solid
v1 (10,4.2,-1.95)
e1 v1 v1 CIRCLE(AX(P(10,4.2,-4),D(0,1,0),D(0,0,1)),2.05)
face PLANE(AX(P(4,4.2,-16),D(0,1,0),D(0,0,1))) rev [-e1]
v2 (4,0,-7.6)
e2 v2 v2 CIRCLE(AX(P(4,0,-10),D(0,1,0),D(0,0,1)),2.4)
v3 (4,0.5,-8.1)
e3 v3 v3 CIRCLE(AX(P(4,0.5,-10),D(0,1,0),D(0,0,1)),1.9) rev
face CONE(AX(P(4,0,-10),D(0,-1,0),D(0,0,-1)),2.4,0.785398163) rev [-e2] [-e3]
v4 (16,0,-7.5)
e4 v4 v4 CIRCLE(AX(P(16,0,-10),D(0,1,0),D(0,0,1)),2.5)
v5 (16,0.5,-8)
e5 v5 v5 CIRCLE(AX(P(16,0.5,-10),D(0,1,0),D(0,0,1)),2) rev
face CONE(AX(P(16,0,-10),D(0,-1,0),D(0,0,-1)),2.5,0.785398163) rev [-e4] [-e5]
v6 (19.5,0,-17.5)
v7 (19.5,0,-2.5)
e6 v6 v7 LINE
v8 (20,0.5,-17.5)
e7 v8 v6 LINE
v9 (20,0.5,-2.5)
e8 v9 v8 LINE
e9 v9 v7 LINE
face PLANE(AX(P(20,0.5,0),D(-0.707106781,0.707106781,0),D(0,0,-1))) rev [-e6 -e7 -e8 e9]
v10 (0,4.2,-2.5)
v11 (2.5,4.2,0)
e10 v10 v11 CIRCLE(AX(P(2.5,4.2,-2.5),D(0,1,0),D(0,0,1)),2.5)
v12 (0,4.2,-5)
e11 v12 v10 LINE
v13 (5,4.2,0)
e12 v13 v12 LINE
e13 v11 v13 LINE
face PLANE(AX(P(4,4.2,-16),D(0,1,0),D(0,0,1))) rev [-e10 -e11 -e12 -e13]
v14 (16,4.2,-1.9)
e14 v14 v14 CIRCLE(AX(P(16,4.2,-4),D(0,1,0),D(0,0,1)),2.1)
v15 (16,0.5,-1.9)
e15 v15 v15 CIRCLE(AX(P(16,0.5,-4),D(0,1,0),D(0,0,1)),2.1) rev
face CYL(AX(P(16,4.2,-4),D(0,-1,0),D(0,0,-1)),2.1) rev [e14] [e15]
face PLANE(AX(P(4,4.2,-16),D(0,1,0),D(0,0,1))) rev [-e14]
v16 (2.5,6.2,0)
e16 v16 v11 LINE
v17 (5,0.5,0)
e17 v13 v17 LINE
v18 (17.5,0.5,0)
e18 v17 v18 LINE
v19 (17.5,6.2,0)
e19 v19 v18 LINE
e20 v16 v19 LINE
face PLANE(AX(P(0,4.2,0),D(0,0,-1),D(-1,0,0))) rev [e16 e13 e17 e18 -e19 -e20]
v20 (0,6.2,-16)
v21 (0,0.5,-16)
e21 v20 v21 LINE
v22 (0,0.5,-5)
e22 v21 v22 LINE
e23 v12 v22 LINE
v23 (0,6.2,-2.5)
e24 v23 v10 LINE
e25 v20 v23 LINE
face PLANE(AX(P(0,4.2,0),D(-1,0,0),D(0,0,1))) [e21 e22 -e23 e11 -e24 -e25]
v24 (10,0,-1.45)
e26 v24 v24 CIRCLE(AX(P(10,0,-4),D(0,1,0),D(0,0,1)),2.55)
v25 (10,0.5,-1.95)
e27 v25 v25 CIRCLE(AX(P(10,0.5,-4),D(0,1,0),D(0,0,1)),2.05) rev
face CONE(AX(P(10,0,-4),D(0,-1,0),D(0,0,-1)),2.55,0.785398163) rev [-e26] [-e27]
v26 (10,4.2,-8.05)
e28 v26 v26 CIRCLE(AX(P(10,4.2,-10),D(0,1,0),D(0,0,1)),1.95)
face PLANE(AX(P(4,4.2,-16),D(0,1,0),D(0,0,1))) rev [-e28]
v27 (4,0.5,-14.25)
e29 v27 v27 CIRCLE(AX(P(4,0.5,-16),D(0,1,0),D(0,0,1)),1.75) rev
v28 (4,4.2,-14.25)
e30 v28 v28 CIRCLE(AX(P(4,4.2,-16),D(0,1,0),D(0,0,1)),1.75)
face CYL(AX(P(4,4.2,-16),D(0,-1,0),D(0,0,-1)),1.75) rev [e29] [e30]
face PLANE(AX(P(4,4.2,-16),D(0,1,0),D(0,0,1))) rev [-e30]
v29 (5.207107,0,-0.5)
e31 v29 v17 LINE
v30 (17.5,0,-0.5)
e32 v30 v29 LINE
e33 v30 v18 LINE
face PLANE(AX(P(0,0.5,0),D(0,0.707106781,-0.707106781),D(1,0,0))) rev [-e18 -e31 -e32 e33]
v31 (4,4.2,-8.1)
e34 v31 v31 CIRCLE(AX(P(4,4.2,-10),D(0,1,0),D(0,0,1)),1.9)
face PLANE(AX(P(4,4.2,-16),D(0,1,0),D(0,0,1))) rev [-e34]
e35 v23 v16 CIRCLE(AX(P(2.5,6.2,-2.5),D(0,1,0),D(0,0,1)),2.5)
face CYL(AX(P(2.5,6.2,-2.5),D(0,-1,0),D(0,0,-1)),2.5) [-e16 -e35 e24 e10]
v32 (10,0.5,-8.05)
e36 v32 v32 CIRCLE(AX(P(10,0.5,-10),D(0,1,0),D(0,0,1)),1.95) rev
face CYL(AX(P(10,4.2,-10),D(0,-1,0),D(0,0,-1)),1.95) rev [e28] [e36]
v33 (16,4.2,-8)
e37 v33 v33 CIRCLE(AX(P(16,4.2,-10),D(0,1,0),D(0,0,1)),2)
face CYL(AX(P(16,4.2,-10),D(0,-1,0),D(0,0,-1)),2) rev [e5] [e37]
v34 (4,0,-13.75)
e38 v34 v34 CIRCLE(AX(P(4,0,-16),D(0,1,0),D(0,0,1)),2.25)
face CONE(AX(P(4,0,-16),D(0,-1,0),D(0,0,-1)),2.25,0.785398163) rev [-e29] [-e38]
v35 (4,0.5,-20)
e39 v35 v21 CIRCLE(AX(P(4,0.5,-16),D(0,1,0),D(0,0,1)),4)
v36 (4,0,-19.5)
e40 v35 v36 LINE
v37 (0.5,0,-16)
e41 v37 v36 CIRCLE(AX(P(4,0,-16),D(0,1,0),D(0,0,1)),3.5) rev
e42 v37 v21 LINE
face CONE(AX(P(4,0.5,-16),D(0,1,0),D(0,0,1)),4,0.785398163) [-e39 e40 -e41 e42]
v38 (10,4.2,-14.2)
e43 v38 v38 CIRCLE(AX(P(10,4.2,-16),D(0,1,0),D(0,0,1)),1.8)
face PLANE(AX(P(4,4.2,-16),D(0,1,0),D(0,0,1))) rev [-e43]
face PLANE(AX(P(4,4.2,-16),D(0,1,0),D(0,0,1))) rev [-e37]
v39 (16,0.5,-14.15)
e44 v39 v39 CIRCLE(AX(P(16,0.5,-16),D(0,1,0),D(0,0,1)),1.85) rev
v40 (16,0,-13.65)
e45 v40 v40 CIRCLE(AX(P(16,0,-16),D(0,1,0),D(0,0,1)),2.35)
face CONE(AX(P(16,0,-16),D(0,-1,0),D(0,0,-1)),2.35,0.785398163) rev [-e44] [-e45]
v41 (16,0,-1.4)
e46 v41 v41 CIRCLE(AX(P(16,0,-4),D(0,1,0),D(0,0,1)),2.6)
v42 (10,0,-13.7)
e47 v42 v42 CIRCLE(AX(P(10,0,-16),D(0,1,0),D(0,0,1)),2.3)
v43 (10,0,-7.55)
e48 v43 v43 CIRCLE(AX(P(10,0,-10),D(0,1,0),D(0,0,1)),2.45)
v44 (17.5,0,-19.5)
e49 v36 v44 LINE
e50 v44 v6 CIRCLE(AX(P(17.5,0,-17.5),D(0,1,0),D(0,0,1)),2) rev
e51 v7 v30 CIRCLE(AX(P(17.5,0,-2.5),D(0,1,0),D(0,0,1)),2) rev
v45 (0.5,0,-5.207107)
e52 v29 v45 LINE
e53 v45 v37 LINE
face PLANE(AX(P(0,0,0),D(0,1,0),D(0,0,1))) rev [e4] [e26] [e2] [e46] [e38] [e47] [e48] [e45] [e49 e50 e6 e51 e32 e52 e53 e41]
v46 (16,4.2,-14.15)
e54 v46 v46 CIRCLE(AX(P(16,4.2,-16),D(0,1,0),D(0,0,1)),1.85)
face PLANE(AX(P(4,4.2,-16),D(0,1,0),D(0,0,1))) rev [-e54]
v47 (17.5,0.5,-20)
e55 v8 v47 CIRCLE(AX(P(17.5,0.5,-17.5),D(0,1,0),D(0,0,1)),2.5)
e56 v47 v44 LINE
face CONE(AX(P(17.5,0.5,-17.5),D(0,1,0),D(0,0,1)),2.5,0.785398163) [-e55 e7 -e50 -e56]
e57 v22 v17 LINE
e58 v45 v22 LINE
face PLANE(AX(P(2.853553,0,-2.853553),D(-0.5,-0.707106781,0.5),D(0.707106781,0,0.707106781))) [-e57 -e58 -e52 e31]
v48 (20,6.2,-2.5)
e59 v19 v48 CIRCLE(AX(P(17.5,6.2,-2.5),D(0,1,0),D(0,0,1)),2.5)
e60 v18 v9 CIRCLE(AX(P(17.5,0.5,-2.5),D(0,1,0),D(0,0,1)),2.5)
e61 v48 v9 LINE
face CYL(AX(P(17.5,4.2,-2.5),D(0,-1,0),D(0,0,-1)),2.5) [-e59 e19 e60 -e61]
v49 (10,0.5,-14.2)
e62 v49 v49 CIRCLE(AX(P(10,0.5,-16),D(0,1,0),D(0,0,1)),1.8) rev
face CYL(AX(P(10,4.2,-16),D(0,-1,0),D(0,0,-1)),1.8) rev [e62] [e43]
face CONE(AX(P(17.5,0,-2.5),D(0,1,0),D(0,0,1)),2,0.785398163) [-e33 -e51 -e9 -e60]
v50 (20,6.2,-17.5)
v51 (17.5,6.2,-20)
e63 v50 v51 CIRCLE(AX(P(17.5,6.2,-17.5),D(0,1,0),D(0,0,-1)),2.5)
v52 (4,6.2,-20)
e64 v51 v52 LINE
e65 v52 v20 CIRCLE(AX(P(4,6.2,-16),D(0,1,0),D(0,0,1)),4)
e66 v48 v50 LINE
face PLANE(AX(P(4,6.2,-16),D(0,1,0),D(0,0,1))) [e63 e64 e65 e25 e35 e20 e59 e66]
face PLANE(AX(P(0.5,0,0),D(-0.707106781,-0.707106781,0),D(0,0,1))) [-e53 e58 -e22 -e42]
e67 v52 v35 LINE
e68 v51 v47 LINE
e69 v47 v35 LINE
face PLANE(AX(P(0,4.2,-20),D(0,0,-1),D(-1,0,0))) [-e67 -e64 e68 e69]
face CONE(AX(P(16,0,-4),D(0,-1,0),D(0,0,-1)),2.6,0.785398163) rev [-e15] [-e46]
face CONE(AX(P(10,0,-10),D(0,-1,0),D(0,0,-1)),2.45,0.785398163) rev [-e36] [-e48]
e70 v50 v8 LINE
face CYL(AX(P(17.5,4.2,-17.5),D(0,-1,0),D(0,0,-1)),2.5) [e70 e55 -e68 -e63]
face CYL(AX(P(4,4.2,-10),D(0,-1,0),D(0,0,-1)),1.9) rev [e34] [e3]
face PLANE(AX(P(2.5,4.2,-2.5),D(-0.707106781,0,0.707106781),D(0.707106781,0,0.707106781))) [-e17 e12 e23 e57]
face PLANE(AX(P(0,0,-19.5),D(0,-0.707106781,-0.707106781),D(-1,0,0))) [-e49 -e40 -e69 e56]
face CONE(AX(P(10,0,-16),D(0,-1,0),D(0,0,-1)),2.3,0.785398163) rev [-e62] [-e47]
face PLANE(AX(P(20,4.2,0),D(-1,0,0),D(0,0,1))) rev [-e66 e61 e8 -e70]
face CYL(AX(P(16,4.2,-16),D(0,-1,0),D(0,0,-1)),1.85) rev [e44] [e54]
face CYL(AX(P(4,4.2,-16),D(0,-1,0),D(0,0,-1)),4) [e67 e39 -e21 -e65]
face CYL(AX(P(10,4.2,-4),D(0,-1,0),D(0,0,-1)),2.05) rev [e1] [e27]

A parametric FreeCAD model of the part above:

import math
import FreeCAD as App
import Part
import Sketcher

V = App.Vector
Q = App.Units.Quantity


def edges_at(feature, points):
    """Names of the edges that pass closest to the given points."""
    edges = feature.Shape.Edges
    near = lambda p: min(range(len(edges)), key=lambda i: edges[i].distToShape(Part.Vertex(*p))[0])
    return sorted({f"Edge{near(p) + 1}" for p in points})

doc = App.newDocument("Part")
body = doc.addObject("PartDesign::Body", "Body")

sketch1 = body.newObject("Sketcher::SketchObject", "Sketch")
sketch1.AttachmentSupport = (doc.getObject("XZ_Plane"), [""])
sketch1.MapMode = "FlatFace"
sketch1.addGeometry(Part.LineSegment(V(0, -5, 0), V(5, 0, 0)), False)
sketch1.addGeometry(Part.LineSegment(V(5, 0, 0), V(17.5, 0, 0)), False)
sketch1.addGeometry(Part.ArcOfCircle(Part.Circle(V(17.5, -2.5, 0), V(0, 0, 1), 2.5), math.radians(0), math.radians(90)), False)
sketch1.addGeometry(Part.LineSegment(V(20, -2.5, 0), V(20, -17.5, 0)), False)
sketch1.addGeometry(Part.ArcOfCircle(Part.Circle(V(17.5, -17.5, 0), V(0, 0, 1), 2.5), math.radians(-90), math.radians(0)), False)
sketch1.addGeometry(Part.LineSegment(V(17.5, -20, 0), V(4, -20, 0)), False)
sketch1.addGeometry(Part.ArcOfCircle(Part.Circle(V(4, -16, 0), V(0, 0, 1), 4), math.radians(180), math.radians(270)), False)
sketch1.addGeometry(Part.LineSegment(V(0, -16, 0), V(0, -5, 0)), False)
sketch1.addGeometry(Part.Circle(V(10, -4, 0), V(0, 0, 1), 2), False)
sketch1.addGeometry(Part.Circle(V(16, -4, 0), V(0, 0, 1), 2.1), False)
sketch1.addGeometry(Part.Circle(V(4, -10, 0), V(0, 0, 1), 1.9), False)
sketch1.addGeometry(Part.Circle(V(10, -10, 0), V(0, 0, 1), 1.9), False)
sketch1.addGeometry(Part.Circle(V(4, -16, 0), V(0, 0, 1), 1.8), False)
sketch1.addGeometry(Part.Circle(V(10, -16, 0), V(0, 0, 1), 1.8), False)
sketch1.addGeometry(Part.Circle(V(16, -10, 0), V(0, 0, 1), 2), False)
sketch1.addGeometry(Part.Circle(V(16, -16, 0), V(0, 0, 1), 1.9), False)
sketch1.addConstraint(Sketcher.Constraint("Coincident", 0, 2, 1, 1))
sketch1.addConstraint(Sketcher.Constraint("Tangent", 1, 2, 2, 2))
sketch1.addConstraint(Sketcher.Constraint("Tangent", 2, 1, 3, 1))
sketch1.addConstraint(Sketcher.Constraint("Tangent", 3, 2, 4, 2))
sketch1.addConstraint(Sketcher.Constraint("Tangent", 4, 1, 5, 1))
sketch1.addConstraint(Sketcher.Constraint("Tangent", 5, 2, 6, 2))
sketch1.addConstraint(Sketcher.Constraint("Tangent", 6, 1, 7, 1))
sketch1.addConstraint(Sketcher.Constraint("Coincident", 7, 2, 0, 1))
sketch1.addConstraint(Sketcher.Constraint("Horizontal", 1))
sketch1.addConstraint(Sketcher.Constraint("Vertical", 3))
sketch1.addConstraint(Sketcher.Constraint("Horizontal", 5))
sketch1.addConstraint(Sketcher.Constraint("Vertical", 7))
sketch1.addConstraint(Sketcher.Constraint("Coincident", 12, 3, 6, 3))
sketch1.addConstraint(Sketcher.Constraint("Equal", 2, 4))
sketch1.addConstraint(Sketcher.Constraint("PointOnObject", 0, 2, -1))
sketch1.addConstraint(Sketcher.Constraint("PointOnObject", 6, 1, -2))
sketch1.addConstraint(Sketcher.Constraint("Horizontal", 8, 3, 9, 3))
sketch1.addConstraint(Sketcher.Constraint("Horizontal", 10, 3, 11, 3))
sketch1.addConstraint(Sketcher.Constraint("Horizontal", 12, 3, 13, 3))
sketch1.addConstraint(Sketcher.Constraint("Horizontal", 11, 3, 14, 3))
sketch1.addConstraint(Sketcher.Constraint("Horizontal", 13, 3, 15, 3))
sketch1.addConstraint(Sketcher.Constraint("Vertical", 6, 3, 10, 3))
sketch1.addConstraint(Sketcher.Constraint("Vertical", 8, 3, 11, 3))
sketch1.addConstraint(Sketcher.Constraint("Vertical", 11, 3, 13, 3))
sketch1.addConstraint(Sketcher.Constraint("Vertical", 9, 3, 14, 3))
sketch1.addConstraint(Sketcher.Constraint("Vertical", 14, 3, 15, 3))
sketch1.addConstraint(Sketcher.Constraint("Diameter", 14, Q("4 mm")))
sketch1.addConstraint(Sketcher.Constraint("Radius", 6, Q("4 mm")))
sketch1.addConstraint(Sketcher.Constraint("Diameter", 8, Q("4.1 mm")))
sketch1.addConstraint(Sketcher.Constraint("Diameter", 9, Q("4.2 mm")))
sketch1.addConstraint(Sketcher.Constraint("Diameter", 10, Q("3.8 mm")))
sketch1.addConstraint(Sketcher.Constraint("Diameter", 11, Q("3.9 mm")))
sketch1.addConstraint(Sketcher.Constraint("Diameter", 12, Q("3.5 mm")))
sketch1.addConstraint(Sketcher.Constraint("Diameter", 13, Q("3.6 mm")))
sketch1.addConstraint(Sketcher.Constraint("Diameter", 15, Q("3.7 mm")))
sketch1.addConstraint(Sketcher.Constraint("Radius", 2, Q("2.5 mm")))
sketch1.addConstraint(Sketcher.Constraint("DistanceY", 3, 2, 3, 1, Q("15 mm")))
sketch1.addConstraint(Sketcher.Constraint("DistanceY", 7, 1, 7, 2, Q("11 mm")))
sketch1.addConstraint(Sketcher.Constraint("Angle", 0, Q("45 deg")))
sketch1.addConstraint(Sketcher.Constraint("DistanceX", 1, 1, 1, 2, Q("12.5 mm")))
sketch1.addConstraint(Sketcher.Constraint("DistanceX", -1, 1, 8, 3, Q("10 mm")))
sketch1.addConstraint(Sketcher.Constraint("DistanceY", 8, 3, -1, 1, Q("4 mm")))
sketch1.addConstraint(Sketcher.Constraint("DistanceX", -1, 1, 9, 3, Q("16 mm")))
sketch1.addConstraint(Sketcher.Constraint("DistanceY", 10, 3, -1, 1, Q("10 mm")))
pad1 = body.newObject("PartDesign::Pad", "Pad")
pad1.Profile = sketch1
pad1.Length = 4.2
pad1.Reversed = True

sketch2 = body.newObject("Sketcher::SketchObject", "Sketch001")
sketch2.AttachmentSupport = (doc.getObject("XZ_Plane"), [""])
sketch2.MapMode = "FlatFace"
sketch2.AttachmentOffset = App.Placement(V(0, 0, -4.2), App.Rotation())
sketch2.addGeometry(Part.LineSegment(V(20, -2.5, 0), V(20, -17.5, 0)), False)
sketch2.addGeometry(Part.ArcOfCircle(Part.Circle(V(17.5, -17.5, 0), V(0, 0, 1), 2.5), math.radians(-90), math.radians(0)), False)
sketch2.addGeometry(Part.LineSegment(V(17.5, -20, 0), V(4, -20, 0)), False)
sketch2.addGeometry(Part.ArcOfCircle(Part.Circle(V(4, -16, 0), V(0, 0, 1), 4), math.radians(180), math.radians(270)), False)
sketch2.addGeometry(Part.LineSegment(V(0, -16, 0), V(0, -2.5, 0)), False)
sketch2.addGeometry(Part.ArcOfCircle(Part.Circle(V(2.5, -2.5, 0), V(0, 0, 1), 2.5), math.radians(90), math.radians(180)), False)
sketch2.addGeometry(Part.LineSegment(V(2.5, 0, 0), V(17.5, 0, 0)), False)
sketch2.addGeometry(Part.ArcOfCircle(Part.Circle(V(17.5, -2.5, 0), V(0, 0, 1), 2.5), math.radians(0), math.radians(90)), False)
sketch2.addConstraint(Sketcher.Constraint("Tangent", 0, 2, 1, 2))
sketch2.addConstraint(Sketcher.Constraint("Tangent", 1, 1, 2, 1))
sketch2.addConstraint(Sketcher.Constraint("Tangent", 2, 2, 3, 2))
sketch2.addConstraint(Sketcher.Constraint("Tangent", 3, 1, 4, 1))
sketch2.addConstraint(Sketcher.Constraint("Tangent", 4, 2, 5, 2))
sketch2.addConstraint(Sketcher.Constraint("Tangent", 5, 1, 6, 1))
sketch2.addConstraint(Sketcher.Constraint("Tangent", 6, 2, 7, 2))
sketch2.addConstraint(Sketcher.Constraint("Tangent", 7, 1, 0, 1))
sketch2.addConstraint(Sketcher.Constraint("Vertical", 0))
sketch2.addConstraint(Sketcher.Constraint("Horizontal", 2))
sketch2.addConstraint(Sketcher.Constraint("Vertical", 4))
sketch2.addConstraint(Sketcher.Constraint("Horizontal", 6))
sketch2.addConstraint(Sketcher.Constraint("Equal", 1, 5))
sketch2.addConstraint(Sketcher.Constraint("Equal", 5, 7))
sketch2.addConstraint(Sketcher.Constraint("PointOnObject", 3, 1, -2))
sketch2.addConstraint(Sketcher.Constraint("PointOnObject", 5, 1, -1))
sketch2.addConstraint(Sketcher.Constraint("Equal", 6, 0))
sketch2.addConstraint(Sketcher.Constraint("Radius", 3, Q("4 mm")))
sketch2.addConstraint(Sketcher.Constraint("Radius", 1, Q("2.5 mm")))
sketch2.addConstraint(Sketcher.Constraint("DistanceX", 6, 1, 6, 2, Q("15 mm")))
pad2 = body.newObject("PartDesign::Pad", "Pad001")
pad2.Profile = sketch2
pad2.Length = 2
pad2.Reversed = True
doc.recompute()

chamfer = body.newObject("PartDesign::Chamfer", "Chamfer")
chamfer.Base = (pad2, edges_at(pad2, [
    (19.268, 0, -19.268),
    (20, 0, -10),
    (19.268, 0, -0.732),
    (11.25, 0, 0),
    (2.5, 0, -2.5),
    (0, 0, -10.5),
    (1.172, 0, -18.828),
    (10.75, 0, -20),
    (4, 0, -17.75),
    (10, 0, -17.8),
    (16, 0, -17.85),
    (4, 0, -11.9),
    (10, 0, -11.95),
    (16, 0, -12),
    (10, 0, -6.05),
    (16, 0, -6.1),
]))
chamfer.Size = 0.5

doc.recompute()
